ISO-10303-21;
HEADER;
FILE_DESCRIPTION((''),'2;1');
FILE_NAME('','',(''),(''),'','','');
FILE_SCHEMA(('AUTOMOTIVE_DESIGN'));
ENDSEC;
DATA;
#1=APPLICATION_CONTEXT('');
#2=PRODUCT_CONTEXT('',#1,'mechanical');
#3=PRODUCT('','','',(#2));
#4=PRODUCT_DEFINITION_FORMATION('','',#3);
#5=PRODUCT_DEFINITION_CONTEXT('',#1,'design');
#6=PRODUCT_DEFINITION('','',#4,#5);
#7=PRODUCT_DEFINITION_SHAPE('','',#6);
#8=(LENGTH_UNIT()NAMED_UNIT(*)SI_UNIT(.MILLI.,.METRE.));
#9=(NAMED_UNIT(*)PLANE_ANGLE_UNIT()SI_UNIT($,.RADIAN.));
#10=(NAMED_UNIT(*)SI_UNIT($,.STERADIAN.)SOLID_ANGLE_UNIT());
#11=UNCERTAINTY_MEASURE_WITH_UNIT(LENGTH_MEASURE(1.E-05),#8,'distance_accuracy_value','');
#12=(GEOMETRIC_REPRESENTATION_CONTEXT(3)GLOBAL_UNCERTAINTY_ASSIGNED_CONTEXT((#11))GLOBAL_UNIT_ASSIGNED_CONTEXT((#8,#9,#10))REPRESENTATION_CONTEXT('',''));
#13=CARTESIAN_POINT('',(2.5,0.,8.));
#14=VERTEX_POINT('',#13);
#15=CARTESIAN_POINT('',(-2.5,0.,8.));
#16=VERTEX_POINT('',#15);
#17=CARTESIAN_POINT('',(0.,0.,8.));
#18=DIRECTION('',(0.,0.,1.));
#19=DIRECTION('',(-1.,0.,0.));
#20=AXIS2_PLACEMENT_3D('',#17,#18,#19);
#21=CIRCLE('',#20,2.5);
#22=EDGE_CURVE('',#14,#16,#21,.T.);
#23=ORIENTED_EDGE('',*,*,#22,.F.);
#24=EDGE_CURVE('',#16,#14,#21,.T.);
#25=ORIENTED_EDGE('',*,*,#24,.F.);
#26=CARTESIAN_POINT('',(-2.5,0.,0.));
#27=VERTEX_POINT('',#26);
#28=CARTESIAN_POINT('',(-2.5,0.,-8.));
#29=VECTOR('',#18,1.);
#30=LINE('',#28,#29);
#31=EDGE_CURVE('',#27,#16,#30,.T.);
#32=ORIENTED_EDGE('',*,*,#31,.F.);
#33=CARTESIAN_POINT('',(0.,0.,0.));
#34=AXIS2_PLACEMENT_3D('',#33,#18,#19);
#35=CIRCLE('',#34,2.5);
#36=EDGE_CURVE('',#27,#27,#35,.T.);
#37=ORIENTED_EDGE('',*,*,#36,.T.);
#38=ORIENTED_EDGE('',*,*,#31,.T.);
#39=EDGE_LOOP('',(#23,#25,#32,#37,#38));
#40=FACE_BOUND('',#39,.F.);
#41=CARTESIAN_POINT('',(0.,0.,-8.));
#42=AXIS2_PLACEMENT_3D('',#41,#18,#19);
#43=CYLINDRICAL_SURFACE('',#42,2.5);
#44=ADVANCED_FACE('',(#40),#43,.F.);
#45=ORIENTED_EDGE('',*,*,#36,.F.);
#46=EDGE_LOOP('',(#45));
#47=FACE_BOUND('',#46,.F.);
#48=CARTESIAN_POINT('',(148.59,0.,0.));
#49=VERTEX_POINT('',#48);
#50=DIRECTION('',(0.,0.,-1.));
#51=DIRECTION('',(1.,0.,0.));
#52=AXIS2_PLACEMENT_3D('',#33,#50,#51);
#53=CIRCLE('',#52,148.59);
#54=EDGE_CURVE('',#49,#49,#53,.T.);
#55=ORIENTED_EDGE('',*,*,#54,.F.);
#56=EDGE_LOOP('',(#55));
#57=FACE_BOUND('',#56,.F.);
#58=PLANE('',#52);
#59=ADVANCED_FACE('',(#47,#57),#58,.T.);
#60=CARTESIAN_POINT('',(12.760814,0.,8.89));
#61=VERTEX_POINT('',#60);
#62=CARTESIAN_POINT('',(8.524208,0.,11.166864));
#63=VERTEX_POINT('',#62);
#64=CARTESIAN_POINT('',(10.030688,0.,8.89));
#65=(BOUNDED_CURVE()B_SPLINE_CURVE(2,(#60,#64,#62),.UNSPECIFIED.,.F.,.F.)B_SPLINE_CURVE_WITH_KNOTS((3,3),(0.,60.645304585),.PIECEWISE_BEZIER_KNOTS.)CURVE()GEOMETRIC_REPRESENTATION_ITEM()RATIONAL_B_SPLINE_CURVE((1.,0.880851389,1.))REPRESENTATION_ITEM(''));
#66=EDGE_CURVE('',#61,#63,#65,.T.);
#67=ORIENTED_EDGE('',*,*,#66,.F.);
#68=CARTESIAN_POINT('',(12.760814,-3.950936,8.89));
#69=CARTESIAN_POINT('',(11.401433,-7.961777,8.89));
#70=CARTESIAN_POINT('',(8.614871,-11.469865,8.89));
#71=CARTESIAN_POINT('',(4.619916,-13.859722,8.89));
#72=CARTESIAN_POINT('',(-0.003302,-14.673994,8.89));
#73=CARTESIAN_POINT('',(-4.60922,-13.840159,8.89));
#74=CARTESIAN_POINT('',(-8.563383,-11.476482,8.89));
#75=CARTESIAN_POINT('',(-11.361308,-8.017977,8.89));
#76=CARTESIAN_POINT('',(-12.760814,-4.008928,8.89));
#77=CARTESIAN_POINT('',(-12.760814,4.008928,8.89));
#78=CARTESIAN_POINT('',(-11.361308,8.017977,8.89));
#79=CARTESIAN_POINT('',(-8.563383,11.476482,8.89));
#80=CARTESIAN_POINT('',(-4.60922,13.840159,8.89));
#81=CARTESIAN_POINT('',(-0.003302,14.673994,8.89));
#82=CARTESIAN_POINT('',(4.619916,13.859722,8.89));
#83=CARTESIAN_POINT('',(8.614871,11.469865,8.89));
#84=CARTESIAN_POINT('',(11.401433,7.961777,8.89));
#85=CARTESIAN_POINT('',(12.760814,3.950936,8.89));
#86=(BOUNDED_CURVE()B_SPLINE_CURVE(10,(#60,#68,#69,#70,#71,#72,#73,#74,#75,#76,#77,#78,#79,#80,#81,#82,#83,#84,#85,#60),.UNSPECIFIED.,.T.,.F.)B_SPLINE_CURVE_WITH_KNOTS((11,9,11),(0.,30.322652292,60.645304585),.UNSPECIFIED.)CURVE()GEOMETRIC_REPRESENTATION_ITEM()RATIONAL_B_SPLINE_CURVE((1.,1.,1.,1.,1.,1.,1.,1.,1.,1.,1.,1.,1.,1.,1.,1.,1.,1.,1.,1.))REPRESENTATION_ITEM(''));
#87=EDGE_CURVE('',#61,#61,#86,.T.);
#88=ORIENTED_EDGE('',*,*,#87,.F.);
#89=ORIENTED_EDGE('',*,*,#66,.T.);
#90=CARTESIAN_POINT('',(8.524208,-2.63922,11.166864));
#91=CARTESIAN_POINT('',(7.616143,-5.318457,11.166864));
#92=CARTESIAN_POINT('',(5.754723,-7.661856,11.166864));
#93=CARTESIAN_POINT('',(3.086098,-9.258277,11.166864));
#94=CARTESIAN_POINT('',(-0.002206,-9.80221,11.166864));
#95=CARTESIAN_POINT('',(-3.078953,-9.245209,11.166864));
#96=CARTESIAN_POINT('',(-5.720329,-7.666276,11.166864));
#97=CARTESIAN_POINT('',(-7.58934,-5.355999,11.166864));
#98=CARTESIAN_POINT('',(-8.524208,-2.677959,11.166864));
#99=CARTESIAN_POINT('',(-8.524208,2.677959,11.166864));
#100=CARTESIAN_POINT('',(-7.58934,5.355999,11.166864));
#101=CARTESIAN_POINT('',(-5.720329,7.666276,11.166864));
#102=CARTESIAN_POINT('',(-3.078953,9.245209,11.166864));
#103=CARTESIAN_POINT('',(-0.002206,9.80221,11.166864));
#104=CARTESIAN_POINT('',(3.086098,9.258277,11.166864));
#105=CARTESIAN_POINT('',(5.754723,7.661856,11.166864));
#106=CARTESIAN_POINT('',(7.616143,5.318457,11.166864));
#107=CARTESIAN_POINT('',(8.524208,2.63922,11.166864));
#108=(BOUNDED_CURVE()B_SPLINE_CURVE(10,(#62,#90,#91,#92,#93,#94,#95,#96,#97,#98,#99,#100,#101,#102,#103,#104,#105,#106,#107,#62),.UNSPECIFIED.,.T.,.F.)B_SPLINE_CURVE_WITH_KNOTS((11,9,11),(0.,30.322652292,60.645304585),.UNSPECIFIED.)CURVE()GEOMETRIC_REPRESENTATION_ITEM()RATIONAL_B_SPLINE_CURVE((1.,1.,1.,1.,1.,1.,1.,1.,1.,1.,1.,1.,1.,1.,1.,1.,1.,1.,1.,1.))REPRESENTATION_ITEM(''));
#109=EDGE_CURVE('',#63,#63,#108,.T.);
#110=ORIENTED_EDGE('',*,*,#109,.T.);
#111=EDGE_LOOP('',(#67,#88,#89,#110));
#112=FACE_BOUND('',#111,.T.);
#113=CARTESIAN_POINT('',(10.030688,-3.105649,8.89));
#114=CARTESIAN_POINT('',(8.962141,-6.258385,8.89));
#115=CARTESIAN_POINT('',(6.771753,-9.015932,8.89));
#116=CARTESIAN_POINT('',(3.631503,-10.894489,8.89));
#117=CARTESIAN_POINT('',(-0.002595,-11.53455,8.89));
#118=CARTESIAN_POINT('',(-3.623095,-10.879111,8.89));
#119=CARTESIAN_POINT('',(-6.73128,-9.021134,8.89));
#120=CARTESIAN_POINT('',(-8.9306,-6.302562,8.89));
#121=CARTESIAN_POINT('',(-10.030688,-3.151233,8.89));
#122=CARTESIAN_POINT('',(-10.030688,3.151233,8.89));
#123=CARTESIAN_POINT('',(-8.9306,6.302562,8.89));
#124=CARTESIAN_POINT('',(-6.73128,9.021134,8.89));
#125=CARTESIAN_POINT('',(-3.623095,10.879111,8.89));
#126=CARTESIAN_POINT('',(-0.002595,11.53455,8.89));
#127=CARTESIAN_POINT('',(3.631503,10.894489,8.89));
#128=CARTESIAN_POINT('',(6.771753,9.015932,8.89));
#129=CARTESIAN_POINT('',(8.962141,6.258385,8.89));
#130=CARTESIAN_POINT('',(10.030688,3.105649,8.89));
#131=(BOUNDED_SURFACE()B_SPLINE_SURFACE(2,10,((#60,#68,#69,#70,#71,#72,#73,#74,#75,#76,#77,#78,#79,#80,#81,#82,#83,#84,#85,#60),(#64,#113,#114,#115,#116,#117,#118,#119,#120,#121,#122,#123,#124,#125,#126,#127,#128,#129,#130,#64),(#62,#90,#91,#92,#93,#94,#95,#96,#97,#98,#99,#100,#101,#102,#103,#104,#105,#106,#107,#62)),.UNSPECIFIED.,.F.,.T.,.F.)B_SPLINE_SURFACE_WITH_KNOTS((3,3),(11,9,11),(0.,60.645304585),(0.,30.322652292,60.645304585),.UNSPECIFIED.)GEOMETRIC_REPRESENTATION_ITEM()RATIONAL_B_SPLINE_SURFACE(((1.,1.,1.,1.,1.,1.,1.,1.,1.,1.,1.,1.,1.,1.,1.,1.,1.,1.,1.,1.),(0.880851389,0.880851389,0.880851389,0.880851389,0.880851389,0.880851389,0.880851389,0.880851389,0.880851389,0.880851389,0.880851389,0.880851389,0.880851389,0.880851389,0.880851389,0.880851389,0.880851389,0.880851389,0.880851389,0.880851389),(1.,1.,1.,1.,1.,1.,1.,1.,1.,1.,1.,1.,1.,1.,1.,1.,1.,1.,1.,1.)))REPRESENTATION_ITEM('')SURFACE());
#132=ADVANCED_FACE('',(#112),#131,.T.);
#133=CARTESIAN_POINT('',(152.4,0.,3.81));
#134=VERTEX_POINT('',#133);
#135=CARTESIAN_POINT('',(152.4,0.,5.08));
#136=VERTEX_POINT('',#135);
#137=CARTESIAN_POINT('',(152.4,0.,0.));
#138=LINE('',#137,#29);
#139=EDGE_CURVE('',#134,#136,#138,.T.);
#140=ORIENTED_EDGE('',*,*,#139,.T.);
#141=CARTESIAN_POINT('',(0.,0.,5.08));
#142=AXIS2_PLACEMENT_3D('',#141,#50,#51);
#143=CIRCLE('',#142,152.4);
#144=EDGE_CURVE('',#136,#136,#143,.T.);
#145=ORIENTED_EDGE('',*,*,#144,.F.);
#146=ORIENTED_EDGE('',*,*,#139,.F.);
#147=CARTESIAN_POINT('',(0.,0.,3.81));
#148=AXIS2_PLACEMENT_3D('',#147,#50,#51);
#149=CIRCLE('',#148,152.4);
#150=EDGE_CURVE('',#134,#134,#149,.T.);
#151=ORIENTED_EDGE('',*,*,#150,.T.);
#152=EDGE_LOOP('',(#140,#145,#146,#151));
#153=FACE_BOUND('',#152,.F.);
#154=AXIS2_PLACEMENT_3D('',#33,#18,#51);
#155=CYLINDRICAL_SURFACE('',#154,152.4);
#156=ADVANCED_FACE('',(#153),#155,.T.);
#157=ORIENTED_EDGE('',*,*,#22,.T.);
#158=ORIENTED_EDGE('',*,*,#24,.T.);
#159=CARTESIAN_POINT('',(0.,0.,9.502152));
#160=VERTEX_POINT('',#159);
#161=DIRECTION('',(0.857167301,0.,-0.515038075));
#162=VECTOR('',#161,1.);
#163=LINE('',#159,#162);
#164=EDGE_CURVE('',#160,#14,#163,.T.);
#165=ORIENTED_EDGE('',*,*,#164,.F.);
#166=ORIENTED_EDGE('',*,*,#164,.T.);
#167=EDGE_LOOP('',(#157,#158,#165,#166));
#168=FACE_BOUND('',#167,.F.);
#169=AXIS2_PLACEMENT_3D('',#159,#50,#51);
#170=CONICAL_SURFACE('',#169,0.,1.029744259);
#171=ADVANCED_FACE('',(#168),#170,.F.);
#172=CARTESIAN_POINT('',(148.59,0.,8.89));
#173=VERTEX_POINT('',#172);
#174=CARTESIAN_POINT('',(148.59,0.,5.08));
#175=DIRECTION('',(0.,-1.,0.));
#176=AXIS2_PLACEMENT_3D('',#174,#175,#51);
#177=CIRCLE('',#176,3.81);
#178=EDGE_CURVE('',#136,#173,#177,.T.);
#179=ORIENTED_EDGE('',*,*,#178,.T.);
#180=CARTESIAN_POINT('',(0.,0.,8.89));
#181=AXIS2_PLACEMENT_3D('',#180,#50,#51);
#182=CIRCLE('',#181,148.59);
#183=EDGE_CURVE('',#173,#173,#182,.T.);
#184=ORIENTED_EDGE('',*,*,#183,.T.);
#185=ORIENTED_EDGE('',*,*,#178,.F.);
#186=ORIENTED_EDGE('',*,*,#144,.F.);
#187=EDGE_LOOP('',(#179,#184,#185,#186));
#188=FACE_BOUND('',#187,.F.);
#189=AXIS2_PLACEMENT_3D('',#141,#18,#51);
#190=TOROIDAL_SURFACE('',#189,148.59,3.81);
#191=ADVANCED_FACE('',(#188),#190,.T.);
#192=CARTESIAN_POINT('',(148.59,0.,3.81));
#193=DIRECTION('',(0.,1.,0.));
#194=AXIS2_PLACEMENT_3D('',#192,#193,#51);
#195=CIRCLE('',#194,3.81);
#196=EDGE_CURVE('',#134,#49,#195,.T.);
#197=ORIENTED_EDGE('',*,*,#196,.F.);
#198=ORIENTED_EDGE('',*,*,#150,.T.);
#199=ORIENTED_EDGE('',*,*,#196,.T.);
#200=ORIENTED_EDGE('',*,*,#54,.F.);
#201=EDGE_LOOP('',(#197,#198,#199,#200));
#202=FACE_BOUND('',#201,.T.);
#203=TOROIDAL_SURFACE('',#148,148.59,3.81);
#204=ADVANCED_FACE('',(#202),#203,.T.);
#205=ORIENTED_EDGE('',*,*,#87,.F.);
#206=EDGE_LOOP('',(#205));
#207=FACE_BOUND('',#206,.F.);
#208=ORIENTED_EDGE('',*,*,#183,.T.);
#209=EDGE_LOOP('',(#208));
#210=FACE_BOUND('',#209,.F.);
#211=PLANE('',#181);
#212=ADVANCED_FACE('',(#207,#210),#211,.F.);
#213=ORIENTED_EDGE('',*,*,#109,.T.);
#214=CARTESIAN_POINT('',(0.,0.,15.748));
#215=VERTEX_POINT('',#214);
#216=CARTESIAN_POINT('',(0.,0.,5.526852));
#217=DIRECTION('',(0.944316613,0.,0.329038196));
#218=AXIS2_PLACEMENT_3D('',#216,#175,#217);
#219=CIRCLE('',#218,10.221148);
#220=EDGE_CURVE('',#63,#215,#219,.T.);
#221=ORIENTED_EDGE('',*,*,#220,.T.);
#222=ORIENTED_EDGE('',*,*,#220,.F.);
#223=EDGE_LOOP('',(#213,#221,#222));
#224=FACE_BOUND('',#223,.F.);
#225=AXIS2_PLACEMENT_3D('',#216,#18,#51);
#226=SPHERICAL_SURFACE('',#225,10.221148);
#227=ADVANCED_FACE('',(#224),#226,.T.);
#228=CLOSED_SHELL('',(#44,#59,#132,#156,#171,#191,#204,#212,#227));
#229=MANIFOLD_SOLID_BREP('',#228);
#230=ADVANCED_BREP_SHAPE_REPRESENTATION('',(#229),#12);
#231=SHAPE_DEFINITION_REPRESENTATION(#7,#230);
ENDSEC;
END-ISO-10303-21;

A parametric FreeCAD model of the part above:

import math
import FreeCAD as App
import Part
import Sketcher
from FreeCAD import Vector
Q = App.Units.Quantity


def edges_at(feature, points):
    """Names of the edges that pass closest to the given points."""
    edges = feature.Shape.Edges
    near = lambda p: min(range(len(edges)), key=lambda i: edges[i].distToShape(Part.Vertex(*p))[0])
    return sorted({f"Edge{near(p) + 1}" for p in points})

doc = App.newDocument("Part")
params = doc.addObject("Spreadsheet::Sheet", "Params")
for row, (alias, value) in enumerate([
    ("sketch1_width", "6 in"),
    ("sketch1_width2", "5.62 in"),
    ("sketch1_height", "0.62 in"),
    ("sketch1_height2", "0.35 in"),
    ("revolution_angle", "360 deg"),
    ("fillet_radius", "0.15 in"),
    ("fillet2_radius", "0.15 in"),
    ("fillet3_radius", "0.2 in"),
    ("hole_diameter", "5 mm"),
    ("hole_depth", "8 mm"),
], start=1):
    params.set(f"A{row}", alias)
    params.set(f"B{row}", "=" + value)
    params.setAlias(f"B{row}", alias)

body = doc.addObject("PartDesign::Body", "Body")

sketch1 = body.newObject("Sketcher::SketchObject", "Sketch")
sketch1.AttachmentSupport = (doc.getObject("XZ_Plane"), [""])
sketch1.MapMode = "FlatFace"
sketch1.addGeometry([
    Part.LineSegment(Vector(0, 16, 0), Vector(0, 0, 0)),
    Part.LineSegment(Vector(0, 0, 0), Vector(152, 0, 0)),
    Part.LineSegment(Vector(152, 0, 0), Vector(152, 9, 0)),
    Part.LineSegment(Vector(152, 9, 0), Vector(10, 9, 0)),
    Part.ArcOfCircle(Part.Circle(Vector(0, 6, 0), Vector(0, 0, 1), 10), math.radians(19), math.radians(90)),
], False)
sketch1.addConstraint([
    Sketcher.Constraint("Coincident", 0, 2, 1, 1),
    Sketcher.Constraint("Coincident", 1, 2, 2, 1),
    Sketcher.Constraint("Coincident", 2, 2, 3, 1),
    Sketcher.Constraint("Coincident", 3, 2, 4, 1),
    Sketcher.Constraint("Coincident", 4, 2, 0, 1),
    Sketcher.Constraint("Vertical", 0),
    Sketcher.Constraint("Horizontal", 1),
    Sketcher.Constraint("Vertical", 2),
    Sketcher.Constraint("Horizontal", 3),
    Sketcher.Constraint("Coincident", 0, 2, -1, 1),
    Sketcher.Constraint("PointOnObject", 4, 3, -2),
    Sketcher.Constraint("DistanceX", 1, 1, 1, 2, Q("6 in")),
    Sketcher.Constraint("DistanceX", 3, 2, 3, 1, Q("5.62 in")),
    Sketcher.Constraint("DistanceY", 0, 2, 0, 1, Q("0.62 in")),
    Sketcher.Constraint("DistanceY", 2, 1, 2, 2, Q("0.35 in")),
])
sketch1.setExpression("Constraints[11]", "Params.sketch1_width")
sketch1.setExpression("Constraints[12]", "Params.sketch1_width2")
sketch1.setExpression("Constraints[13]", "Params.sketch1_height")
sketch1.setExpression("Constraints[14]", "Params.sketch1_height2")
revolution = body.newObject("PartDesign::Revolution", "Revolution")
revolution.Profile = sketch1
revolution.ReferenceAxis = (sketch1, ["V_Axis"])
revolution.setExpression("Angle", "Params.revolution_angle")
doc.recompute()

fillet = body.newObject("PartDesign::Fillet", "Fillet")
fillet.Base = (revolution, edges_at(revolution, [(-152.4, 0, 8.89)]))
fillet.setExpression("Radius", "Params.fillet_radius")
doc.recompute()

fillet2 = body.newObject("PartDesign::Fillet", "Fillet001")
fillet2.Base = (fillet, edges_at(fillet, [(-152.4, 0, 0)]))
fillet2.setExpression("Radius", "Params.fillet2_radius")
doc.recompute()

fillet3 = body.newObject("PartDesign::Fillet", "Fillet002")
fillet3.Base = (fillet2, edges_at(fillet2, [(-9.652, 0, 8.89)]))
fillet3.setExpression("Radius", "Params.fillet3_radius")

sketch2 = body.newObject("Sketcher::SketchObject", "Sketch001")
sketch2.AttachmentSupport = (doc.getObject("XY_Plane"), [""])
sketch2.MapMode = "FlatFace"
sketch2.addGeometry(Part.Circle(Vector(0, 0, 0), Vector(0, 0, 1), 2.5), False)
sketch2.addConstraint([
    Sketcher.Constraint("Coincident", 0, 3, -1, 1),
    Sketcher.Constraint("Diameter", 0, 5.0),
])
doc.recompute()
hole = body.newObject("PartDesign::Hole", "Hole")
hole.Profile = sketch2
hole.ThreadType = "None"
hole.setExpression("Diameter", "Params.hole_diameter")
hole.DepthType = "Dimension"
hole.setExpression("Depth", "Params.hole_depth")
hole.DrillPoint = "Angled"
hole.DrillPointAngle = 118
hole.Reversed = True

doc.recompute()
